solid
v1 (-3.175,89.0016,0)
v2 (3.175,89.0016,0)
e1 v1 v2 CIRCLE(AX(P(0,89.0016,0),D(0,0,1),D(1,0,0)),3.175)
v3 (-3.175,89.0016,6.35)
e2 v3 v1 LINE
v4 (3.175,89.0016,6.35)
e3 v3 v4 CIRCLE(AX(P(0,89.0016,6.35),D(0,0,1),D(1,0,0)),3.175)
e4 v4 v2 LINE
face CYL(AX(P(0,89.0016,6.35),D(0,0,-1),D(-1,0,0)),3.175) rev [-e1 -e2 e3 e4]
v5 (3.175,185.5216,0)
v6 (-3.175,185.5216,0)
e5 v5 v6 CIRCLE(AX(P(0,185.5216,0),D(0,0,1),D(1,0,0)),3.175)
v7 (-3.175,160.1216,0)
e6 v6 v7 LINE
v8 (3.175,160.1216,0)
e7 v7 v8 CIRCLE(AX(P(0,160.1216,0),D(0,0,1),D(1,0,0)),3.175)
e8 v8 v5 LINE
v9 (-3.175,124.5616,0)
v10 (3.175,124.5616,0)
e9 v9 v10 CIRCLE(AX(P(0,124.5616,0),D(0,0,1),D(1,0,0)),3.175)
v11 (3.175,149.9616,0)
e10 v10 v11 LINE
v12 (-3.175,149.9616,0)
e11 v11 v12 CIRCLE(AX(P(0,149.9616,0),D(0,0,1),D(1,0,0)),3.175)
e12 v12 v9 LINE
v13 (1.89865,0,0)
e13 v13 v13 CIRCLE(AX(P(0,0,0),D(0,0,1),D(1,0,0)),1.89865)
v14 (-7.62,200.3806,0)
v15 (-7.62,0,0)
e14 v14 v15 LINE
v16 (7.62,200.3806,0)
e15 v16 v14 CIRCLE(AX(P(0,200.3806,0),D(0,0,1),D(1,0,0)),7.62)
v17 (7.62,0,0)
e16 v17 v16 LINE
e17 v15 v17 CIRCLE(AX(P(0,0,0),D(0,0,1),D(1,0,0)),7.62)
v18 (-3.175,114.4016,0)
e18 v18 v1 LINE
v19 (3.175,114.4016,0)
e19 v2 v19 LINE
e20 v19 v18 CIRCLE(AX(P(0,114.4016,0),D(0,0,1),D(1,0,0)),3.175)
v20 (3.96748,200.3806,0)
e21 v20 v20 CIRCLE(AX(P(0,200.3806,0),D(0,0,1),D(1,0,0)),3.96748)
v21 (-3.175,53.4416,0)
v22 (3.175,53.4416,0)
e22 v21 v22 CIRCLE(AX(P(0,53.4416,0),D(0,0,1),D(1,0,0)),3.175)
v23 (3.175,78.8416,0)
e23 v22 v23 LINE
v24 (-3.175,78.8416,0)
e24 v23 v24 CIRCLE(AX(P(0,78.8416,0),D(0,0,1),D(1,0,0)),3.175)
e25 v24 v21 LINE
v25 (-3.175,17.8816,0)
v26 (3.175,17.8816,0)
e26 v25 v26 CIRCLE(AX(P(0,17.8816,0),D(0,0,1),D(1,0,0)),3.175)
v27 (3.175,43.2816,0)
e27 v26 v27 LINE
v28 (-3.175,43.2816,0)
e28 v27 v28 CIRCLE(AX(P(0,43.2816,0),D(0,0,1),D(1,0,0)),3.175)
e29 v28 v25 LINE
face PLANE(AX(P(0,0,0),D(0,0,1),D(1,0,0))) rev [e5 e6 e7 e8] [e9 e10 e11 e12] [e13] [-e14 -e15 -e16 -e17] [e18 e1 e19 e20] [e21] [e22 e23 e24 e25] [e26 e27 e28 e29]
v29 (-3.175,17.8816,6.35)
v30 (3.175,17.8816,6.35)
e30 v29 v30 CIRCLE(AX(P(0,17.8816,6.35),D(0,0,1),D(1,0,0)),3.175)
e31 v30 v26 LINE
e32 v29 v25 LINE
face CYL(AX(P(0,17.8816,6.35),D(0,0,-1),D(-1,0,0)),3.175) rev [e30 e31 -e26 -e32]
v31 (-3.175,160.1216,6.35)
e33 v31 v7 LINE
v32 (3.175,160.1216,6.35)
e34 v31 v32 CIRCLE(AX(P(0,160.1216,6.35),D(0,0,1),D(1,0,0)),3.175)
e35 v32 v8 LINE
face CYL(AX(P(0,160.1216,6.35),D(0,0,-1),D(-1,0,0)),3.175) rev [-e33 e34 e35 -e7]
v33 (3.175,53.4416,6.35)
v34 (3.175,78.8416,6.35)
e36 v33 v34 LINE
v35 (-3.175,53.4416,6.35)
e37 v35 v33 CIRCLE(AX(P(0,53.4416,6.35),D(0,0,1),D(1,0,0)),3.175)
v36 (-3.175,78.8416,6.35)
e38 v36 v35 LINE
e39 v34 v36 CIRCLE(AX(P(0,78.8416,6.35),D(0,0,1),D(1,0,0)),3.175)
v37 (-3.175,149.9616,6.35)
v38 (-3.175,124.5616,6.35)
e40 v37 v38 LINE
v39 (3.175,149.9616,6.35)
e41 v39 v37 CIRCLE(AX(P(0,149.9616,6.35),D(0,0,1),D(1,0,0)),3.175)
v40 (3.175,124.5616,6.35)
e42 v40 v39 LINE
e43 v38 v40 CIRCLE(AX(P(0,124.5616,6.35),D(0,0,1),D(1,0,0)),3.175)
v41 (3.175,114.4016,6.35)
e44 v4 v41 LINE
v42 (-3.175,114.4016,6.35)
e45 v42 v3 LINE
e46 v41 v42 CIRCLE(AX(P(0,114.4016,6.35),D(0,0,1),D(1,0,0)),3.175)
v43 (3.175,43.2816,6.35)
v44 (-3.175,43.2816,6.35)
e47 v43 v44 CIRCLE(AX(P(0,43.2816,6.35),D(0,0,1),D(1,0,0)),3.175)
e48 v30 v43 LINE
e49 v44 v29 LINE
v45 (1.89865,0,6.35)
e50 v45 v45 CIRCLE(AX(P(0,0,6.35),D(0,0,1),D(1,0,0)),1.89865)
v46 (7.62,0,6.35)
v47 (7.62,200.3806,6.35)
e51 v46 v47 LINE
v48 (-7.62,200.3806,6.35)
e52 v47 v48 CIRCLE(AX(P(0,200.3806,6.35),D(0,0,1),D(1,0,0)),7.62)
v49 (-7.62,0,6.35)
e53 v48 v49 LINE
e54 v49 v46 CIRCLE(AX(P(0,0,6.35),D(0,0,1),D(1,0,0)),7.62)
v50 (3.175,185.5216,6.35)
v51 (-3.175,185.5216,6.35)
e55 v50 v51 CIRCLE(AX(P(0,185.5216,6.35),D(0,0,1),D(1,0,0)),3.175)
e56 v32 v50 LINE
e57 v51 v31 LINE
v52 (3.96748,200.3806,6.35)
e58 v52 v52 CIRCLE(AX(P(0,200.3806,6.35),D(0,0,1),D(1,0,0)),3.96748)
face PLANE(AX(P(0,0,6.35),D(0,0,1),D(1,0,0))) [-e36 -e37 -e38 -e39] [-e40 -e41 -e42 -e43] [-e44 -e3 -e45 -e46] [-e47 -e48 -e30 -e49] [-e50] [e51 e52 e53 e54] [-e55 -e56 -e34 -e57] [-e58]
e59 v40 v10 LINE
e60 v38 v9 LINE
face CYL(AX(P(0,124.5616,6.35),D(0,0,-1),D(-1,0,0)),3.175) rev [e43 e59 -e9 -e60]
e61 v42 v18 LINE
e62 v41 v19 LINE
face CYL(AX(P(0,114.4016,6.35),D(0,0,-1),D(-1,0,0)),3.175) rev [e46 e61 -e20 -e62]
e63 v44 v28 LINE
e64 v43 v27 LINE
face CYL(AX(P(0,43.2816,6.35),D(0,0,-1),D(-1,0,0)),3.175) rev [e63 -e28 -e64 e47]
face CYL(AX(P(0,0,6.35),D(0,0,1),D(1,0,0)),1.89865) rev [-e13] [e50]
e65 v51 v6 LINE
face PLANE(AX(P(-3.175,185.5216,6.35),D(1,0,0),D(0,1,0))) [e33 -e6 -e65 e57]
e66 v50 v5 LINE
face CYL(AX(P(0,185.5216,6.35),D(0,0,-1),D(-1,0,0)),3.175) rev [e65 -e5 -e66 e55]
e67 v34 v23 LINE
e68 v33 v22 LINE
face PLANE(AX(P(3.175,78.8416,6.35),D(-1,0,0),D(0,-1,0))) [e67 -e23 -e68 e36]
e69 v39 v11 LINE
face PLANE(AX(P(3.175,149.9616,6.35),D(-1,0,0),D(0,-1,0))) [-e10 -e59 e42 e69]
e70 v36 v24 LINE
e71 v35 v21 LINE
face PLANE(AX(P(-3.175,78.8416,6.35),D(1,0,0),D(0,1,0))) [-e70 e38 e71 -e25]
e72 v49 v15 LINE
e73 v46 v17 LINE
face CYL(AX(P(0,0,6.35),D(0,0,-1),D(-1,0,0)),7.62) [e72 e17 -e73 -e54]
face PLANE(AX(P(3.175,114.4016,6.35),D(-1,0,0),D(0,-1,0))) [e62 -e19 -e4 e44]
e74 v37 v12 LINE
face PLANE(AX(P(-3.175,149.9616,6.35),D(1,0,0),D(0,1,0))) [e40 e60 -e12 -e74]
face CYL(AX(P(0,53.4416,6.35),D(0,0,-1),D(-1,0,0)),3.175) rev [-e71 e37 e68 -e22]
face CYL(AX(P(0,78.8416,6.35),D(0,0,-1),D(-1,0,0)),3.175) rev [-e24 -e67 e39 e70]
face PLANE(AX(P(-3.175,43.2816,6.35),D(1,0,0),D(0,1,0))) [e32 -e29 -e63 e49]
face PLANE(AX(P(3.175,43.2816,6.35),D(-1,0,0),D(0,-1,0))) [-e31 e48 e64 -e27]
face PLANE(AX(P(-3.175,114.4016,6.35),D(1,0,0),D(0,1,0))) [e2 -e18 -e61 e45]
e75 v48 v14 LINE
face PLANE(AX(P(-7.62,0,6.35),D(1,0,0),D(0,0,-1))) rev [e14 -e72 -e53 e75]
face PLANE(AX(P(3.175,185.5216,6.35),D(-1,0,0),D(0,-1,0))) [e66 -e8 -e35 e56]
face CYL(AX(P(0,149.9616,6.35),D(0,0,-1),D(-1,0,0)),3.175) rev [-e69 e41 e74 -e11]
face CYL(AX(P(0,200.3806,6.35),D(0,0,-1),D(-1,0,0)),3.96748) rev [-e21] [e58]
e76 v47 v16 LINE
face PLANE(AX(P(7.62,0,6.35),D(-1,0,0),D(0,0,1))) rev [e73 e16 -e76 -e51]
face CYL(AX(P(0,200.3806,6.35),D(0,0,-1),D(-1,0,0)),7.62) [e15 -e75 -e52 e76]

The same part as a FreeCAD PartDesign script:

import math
import FreeCAD as App
import Part
import Sketcher
Q = App.Units.Quantity

doc = App.newDocument("Part")
body = doc.addObject("PartDesign::Body", "Body")

sketch1 = body.newObject("Sketcher::SketchObject", "Sketch")
sketch1.AttachmentSupport = (doc.getObject("XY_Plane"), [""])
sketch1.MapMode = "FlatFace"
sketch1.addGeometry(Part.LineSegment(App.Vector(-7.6, 200.4, 0), App.Vector(-7.6, 0, 0)), False)
sketch1.addGeometry(Part.ArcOfCircle(Part.Circle(App.Vector(0, 0, 0), App.Vector(0, 0, 1), 7.6), math.radians(180), math.radians(360)), False)
sketch1.addGeometry(Part.LineSegment(App.Vector(7.6, 0, 0), App.Vector(7.6, 200.4, 0)), False)
sketch1.addGeometry(Part.ArcOfCircle(Part.Circle(App.Vector(0, 200.4, 0), App.Vector(0, 0, 1), 7.6), math.radians(0), math.radians(180)), False)
sketch1.addGeometry(Part.LineSegment(App.Vector(3.2, 43.3, 0), App.Vector(3.2, 17.9, 0)), False)
sketch1.addGeometry(Part.ArcOfCircle(Part.Circle(App.Vector(0, 17.9, 0), App.Vector(0, 0, 1), 3.2), math.radians(180), math.radians(360)), False)
sketch1.addGeometry(Part.LineSegment(App.Vector(-3.2, 17.9, 0), App.Vector(-3.2, 43.3, 0)), False)
sketch1.addGeometry(Part.ArcOfCircle(Part.Circle(App.Vector(0, 43.3, 0), App.Vector(0, 0, 1), 3.2), math.radians(0), math.radians(180)), False)
sketch1.addGeometry(Part.LineSegment(App.Vector(3.2, 78.8, 0), App.Vector(3.2, 53.4, 0)), False)
sketch1.addGeometry(Part.ArcOfCircle(Part.Circle(App.Vector(0, 53.4, 0), App.Vector(0, 0, 1), 3.2), math.radians(180), math.radians(360)), False)
sketch1.addGeometry(Part.LineSegment(App.Vector(-3.2, 53.4, 0), App.Vector(-3.2, 78.8, 0)), False)
sketch1.addGeometry(Part.ArcOfCircle(Part.Circle(App.Vector(0, 78.8, 0), App.Vector(0, 0, 1), 3.2), math.radians(0), math.radians(180)), False)
sketch1.addGeometry(Part.LineSegment(App.Vector(3.2, 114.4, 0), App.Vector(3.2, 89, 0)), False)
sketch1.addGeometry(Part.ArcOfCircle(Part.Circle(App.Vector(0, 89, 0), App.Vector(0, 0, 1), 3.2), math.radians(180), math.radians(360)), False)
sketch1.addGeometry(Part.LineSegment(App.Vector(-3.2, 89, 0), App.Vector(-3.2, 114.4, 0)), False)
sketch1.addGeometry(Part.ArcOfCircle(Part.Circle(App.Vector(0, 114.4, 0), App.Vector(0, 0, 1), 3.2), math.radians(0), math.radians(180)), False)
sketch1.addGeometry(Part.LineSegment(App.Vector(3.2, 150, 0), App.Vector(3.2, 124.6, 0)), False)
sketch1.addGeometry(Part.ArcOfCircle(Part.Circle(App.Vector(0, 124.6, 0), App.Vector(0, 0, 1), 3.2), math.radians(180), math.radians(360)), False)
sketch1.addGeometry(Part.LineSegment(App.Vector(-3.2, 124.6, 0), App.Vector(-3.2, 150, 0)), False)
sketch1.addGeometry(Part.ArcOfCircle(Part.Circle(App.Vector(0, 150, 0), App.Vector(0, 0, 1), 3.2), math.radians(0), math.radians(180)), False)
sketch1.addGeometry(Part.LineSegment(App.Vector(3.2, 185.5, 0), App.Vector(3.2, 160.1, 0)), False)
sketch1.addGeometry(Part.ArcOfCircle(Part.Circle(App.Vector(0, 160.1, 0), App.Vector(0, 0, 1), 3.2), math.radians(180), math.radians(360)), False)
sketch1.addGeometry(Part.LineSegment(App.Vector(-3.2, 160.1, 0), App.Vector(-3.2, 185.5, 0)), False)
sketch1.addGeometry(Part.ArcOfCircle(Part.Circle(App.Vector(0, 185.5, 0), App.Vector(0, 0, 1), 3.2), math.radians(0), math.radians(180)), False)
sketch1.addGeometry(Part.Circle(App.Vector(0, 200.4, 0), App.Vector(0, 0, 1), 4), False)
sketch1.addConstraint(Sketcher.Constraint("Tangent", 0, 2, 1, 1))
sketch1.addConstraint(Sketcher.Constraint("Tangent", 1, 2, 2, 1))
sketch1.addConstraint(Sketcher.Constraint("Tangent", 2, 2, 3, 1))
sketch1.addConstraint(Sketcher.Constraint("Tangent", 3, 2, 0, 1))
sketch1.addConstraint(Sketcher.Constraint("Tangent", 4, 2, 5, 2))
sketch1.addConstraint(Sketcher.Constraint("Tangent", 5, 1, 6, 1))
sketch1.addConstraint(Sketcher.Constraint("Tangent", 6, 2, 7, 2))
sketch1.addConstraint(Sketcher.Constraint("Tangent", 7, 1, 4, 1))
sketch1.addConstraint(Sketcher.Constraint("Tangent", 8, 2, 9, 2))
sketch1.addConstraint(Sketcher.Constraint("Tangent", 9, 1, 10, 1))
sketch1.addConstraint(Sketcher.Constraint("Tangent", 10, 2, 11, 2))
sketch1.addConstraint(Sketcher.Constraint("Tangent", 11, 1, 8, 1))
sketch1.addConstraint(Sketcher.Constraint("Tangent", 12, 2, 13, 2))
sketch1.addConstraint(Sketcher.Constraint("Tangent", 13, 1, 14, 1))
sketch1.addConstraint(Sketcher.Constraint("Tangent", 14, 2, 15, 2))
sketch1.addConstraint(Sketcher.Constraint("Tangent", 15, 1, 12, 1))
sketch1.addConstraint(Sketcher.Constraint("Tangent", 16, 2, 17, 2))
sketch1.addConstraint(Sketcher.Constraint("Tangent", 17, 1, 18, 1))
sketch1.addConstraint(Sketcher.Constraint("Tangent", 18, 2, 19, 2))
sketch1.addConstraint(Sketcher.Constraint("Tangent", 19, 1, 16, 1))
sketch1.addConstraint(Sketcher.Constraint("Tangent", 20, 2, 21, 2))
sketch1.addConstraint(Sketcher.Constraint("Tangent", 21, 1, 22, 1))
sketch1.addConstraint(Sketcher.Constraint("Tangent", 22, 2, 23, 2))
sketch1.addConstraint(Sketcher.Constraint("Tangent", 23, 1, 20, 1))
sketch1.addConstraint(Sketcher.Constraint("Vertical", 0))
sketch1.addConstraint(Sketcher.Constraint("Vertical", 2))
sketch1.addConstraint(Sketcher.Constraint("Vertical", 4))
sketch1.addConstraint(Sketcher.Constraint("Vertical", 6))
sketch1.addConstraint(Sketcher.Constraint("Vertical", 8))
sketch1.addConstraint(Sketcher.Constraint("Vertical", 10))
sketch1.addConstraint(Sketcher.Constraint("Vertical", 12))
sketch1.addConstraint(Sketcher.Constraint("Vertical", 14))
sketch1.addConstraint(Sketcher.Constraint("Vertical", 16))
sketch1.addConstraint(Sketcher.Constraint("Vertical", 18))
sketch1.addConstraint(Sketcher.Constraint("Vertical", 20))
sketch1.addConstraint(Sketcher.Constraint("Vertical", 22))
sketch1.addConstraint(Sketcher.Constraint("Coincident", 1, 3, -1, 1))
sketch1.addConstraint(Sketcher.Constraint("Coincident", 24, 3, 3, 3))
sketch1.addConstraint(Sketcher.Constraint("Equal", 7, 9))
sketch1.addConstraint(Sketcher.Constraint("Equal", 11, 13))
sketch1.addConstraint(Sketcher.Constraint("Equal", 15, 17))
sketch1.addConstraint(Sketcher.Constraint("Equal", 19, 21))
sketch1.addConstraint(Sketcher.Constraint("PointOnObject", 5, 3, -2))
sketch1.addConstraint(Sketcher.Constraint("PointOnObject", 9, 3, -2))
sketch1.addConstraint(Sketcher.Constraint("PointOnObject", 13, 3, -2))
sketch1.addConstraint(Sketcher.Constraint("PointOnObject", 17, 3, -2))
sketch1.addConstraint(Sketcher.Constraint("PointOnObject", 21, 3, -2))
sketch1.addConstraint(Sketcher.Constraint("Equal", 6, 8))
sketch1.addConstraint(Sketcher.Constraint("Equal", 10, 12))
sketch1.addConstraint(Sketcher.Constraint("Equal", 14, 16))
sketch1.addConstraint(Sketcher.Constraint("Equal", 18, 20))
sketch1.addConstraint(Sketcher.Constraint("Radius", 1, Q("0.3 in")))
sketch1.addConstraint(Sketcher.Constraint("DistanceY", 4, 2, 4, 1, Q("1 in")))
sketch1.addConstraint(Sketcher.Constraint("Radius", 5, Q("0.125 in")))
sketch1.addConstraint(Sketcher.Constraint("Diameter", 24, Q("0.3124 in")))
sketch1.addConstraint(Sketcher.Constraint("DistanceY", 7, 3, 9, 3, Q("0.4 in")))
sketch1.addConstraint(Sketcher.Constraint("DistanceY", 11, 3, 13, 3, Q("0.4 in")))
sketch1.addConstraint(Sketcher.Constraint("DistanceY", 15, 3, 17, 3, Q("0.4 in")))
sketch1.addConstraint(Sketcher.Constraint("DistanceY", 19, 3, 21, 3, Q("0.4 in")))
sketch1.addConstraint(Sketcher.Constraint("DistanceY", 0, 2, 0, 1, Q("7.889 in")))
sketch1.addConstraint(Sketcher.Constraint("DistanceY", -1, 1, 5, 3, Q("0.704 in")))
pad1 = body.newObject("PartDesign::Pad", "Pad")
pad1.Profile = sketch1
pad1.Length = Q("0.25 in")

sketch2 = body.newObject("Sketcher::SketchObject", "Sketch001")
sketch2.AttachmentSupport = (doc.getObject("XY_Plane"), [""])
sketch2.MapMode = "FlatFace"
sketch2.AttachmentOffset = App.Placement(App.Vector(0, 0, 0.25 * 25.4), App.Rotation())
sketch2.addGeometry(Part.Circle(App.Vector(0, 0, 0), App.Vector(0, 0, 1), 1.9), False)
sketch2.addConstraint(Sketcher.Constraint("Coincident", 0, 3, -1, 1))
sketch2.addConstraint(Sketcher.Constraint("Diameter", 0, Q("0.1495 in")))
doc.recompute()
hole = body.newObject("PartDesign::Hole", "Hole")
hole.Profile = sketch2
hole.ThreadType = "None"
hole.Diameter = Q("0.1495 in")
hole.DepthType = "ThroughAll"

doc.recompute()
